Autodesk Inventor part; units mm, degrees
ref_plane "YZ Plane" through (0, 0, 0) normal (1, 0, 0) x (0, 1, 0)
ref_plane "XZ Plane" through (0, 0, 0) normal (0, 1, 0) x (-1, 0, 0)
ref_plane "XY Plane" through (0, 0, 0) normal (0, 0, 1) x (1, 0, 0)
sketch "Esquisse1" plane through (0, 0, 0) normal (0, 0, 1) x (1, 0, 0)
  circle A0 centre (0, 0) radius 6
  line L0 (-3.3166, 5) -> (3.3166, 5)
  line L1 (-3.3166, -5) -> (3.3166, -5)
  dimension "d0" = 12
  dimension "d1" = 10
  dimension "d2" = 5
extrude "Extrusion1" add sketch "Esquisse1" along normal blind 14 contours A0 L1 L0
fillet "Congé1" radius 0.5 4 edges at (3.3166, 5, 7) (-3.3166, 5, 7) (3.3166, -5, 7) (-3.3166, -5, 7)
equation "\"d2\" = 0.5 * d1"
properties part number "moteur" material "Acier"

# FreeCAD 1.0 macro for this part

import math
import FreeCAD as App
import Part
import Sketcher

V = App.Vector


def edges_at(feature, points):
    """Names of the edges that pass closest to the given points."""
    edges = feature.Shape.Edges
    near = lambda p: min(range(len(edges)), key=lambda i: edges[i].distToShape(Part.Vertex(*p))[0])
    return sorted({f"Edge{near(p) + 1}" for p in points})

doc = App.newDocument("Part")
params = doc.addObject("Spreadsheet::Sheet", "Params")
for row, (alias, value) in enumerate([
    ("sketch1_radius", "6 mm"),
    ("pad1_length", "14 mm"),
    ("fillet_radius", "0.5 mm"),
], start=1):
    params.set(f"A{row}", alias)
    params.set(f"B{row}", "=" + value)
    params.setAlias(f"B{row}", alias)

body = doc.addObject("PartDesign::Body", "Body")

# Sketch on XY plane
sketch1 = doc.addObject("Sketcher::SketchObject", "Sketch")
body.addObject(sketch1)
sketch1.AttachmentSupport = (doc.XY_Plane, [""])
sketch1.MapMode = "FlatFace"
sketch1.addGeometry([
    Part.ArcOfCircle(Part.Circle(V(0, 0, 0), V(0, 0, 1), 6), math.radians(-56), math.radians(56)),
    Part.LineSegment(V(3, 5, 0), V(-3, 5, 0)),
    Part.ArcOfCircle(Part.Circle(V(0, 0, 0), V(0, 0, 1), 6), math.radians(124), math.radians(236)),
    Part.LineSegment(V(-3, -5, 0), V(3, -5, 0)),
], False)
sketch1.addConstraint([
    Sketcher.Constraint("Coincident", 0, 2, 1, 1),
    Sketcher.Constraint("Coincident", 1, 2, 2, 1),
    Sketcher.Constraint("Coincident", 2, 2, 3, 1),
    Sketcher.Constraint("Coincident", 3, 2, 0, 1),
    Sketcher.Constraint("Horizontal", 1),
    Sketcher.Constraint("Horizontal", 3),
    Sketcher.Constraint("Coincident", 0, 3, -1, 1),
    Sketcher.Constraint("Coincident", 2, 3, -1, 1),
    Sketcher.Constraint("Equal", 0, 2),
    Sketcher.Constraint("Vertical", 1, 2, 2, 2),
    Sketcher.Constraint("Radius", 0, 6.0),
    Sketcher.Constraint("DistanceY", -1, 1, 0, 2, 5.0),
])
sketch1.setExpression("Constraints[10]", "Params.sketch1_radius")
pad1 = doc.addObject("PartDesign::Pad", "Pad")
body.addObject(pad1)
pad1.Profile = sketch1
pad1.setExpression("Length", "Params.pad1_length")
doc.recompute()

fillet = doc.addObject("PartDesign::Fillet", "Fillet")
body.addObject(fillet)
fillet.Base = (pad1, edges_at(pad1, [
    (3.317, 5, 7),
    (-3.317, 5, 7),
    (3.317, -5, 7),
    (-3.317, -5, 7),
]))
fillet.setExpression("Radius", "Params.fillet_radius")

doc.recompute()
